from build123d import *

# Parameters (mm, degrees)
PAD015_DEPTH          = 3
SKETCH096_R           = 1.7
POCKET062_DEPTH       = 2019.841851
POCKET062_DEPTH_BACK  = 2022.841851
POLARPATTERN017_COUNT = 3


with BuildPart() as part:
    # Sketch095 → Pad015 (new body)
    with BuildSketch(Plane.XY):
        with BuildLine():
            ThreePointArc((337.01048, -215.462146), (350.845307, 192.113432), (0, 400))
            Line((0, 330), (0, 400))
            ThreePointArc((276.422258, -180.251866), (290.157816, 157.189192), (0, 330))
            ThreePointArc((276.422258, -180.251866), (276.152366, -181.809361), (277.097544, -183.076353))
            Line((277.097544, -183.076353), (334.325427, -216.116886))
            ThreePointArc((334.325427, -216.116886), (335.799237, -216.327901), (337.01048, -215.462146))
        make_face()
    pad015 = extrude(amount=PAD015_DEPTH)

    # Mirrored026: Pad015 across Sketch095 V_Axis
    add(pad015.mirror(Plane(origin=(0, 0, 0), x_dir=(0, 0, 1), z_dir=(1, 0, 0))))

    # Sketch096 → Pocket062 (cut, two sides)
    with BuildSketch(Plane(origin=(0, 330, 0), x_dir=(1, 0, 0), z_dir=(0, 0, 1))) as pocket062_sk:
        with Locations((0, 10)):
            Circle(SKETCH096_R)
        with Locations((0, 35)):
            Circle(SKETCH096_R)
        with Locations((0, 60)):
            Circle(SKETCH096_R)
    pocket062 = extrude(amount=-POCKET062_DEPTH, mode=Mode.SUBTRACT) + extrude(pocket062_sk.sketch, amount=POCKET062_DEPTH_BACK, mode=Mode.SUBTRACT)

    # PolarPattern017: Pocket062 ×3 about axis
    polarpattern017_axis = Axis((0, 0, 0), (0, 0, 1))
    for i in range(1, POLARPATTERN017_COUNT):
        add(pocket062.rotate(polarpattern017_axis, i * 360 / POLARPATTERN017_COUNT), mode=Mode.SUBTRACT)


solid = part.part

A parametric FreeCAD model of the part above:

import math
import FreeCAD as App
import Part
import Sketcher
Q = App.Units.Quantity

doc = App.newDocument("Part")
params = doc.addObject("Spreadsheet::Sheet", "Params")
for row, (alias, value) in enumerate([
    ("sketch1_radius", "400 mm"),
    ("sketch1_radius2", "330 mm"),
    ("sketch1_radius3", "2.000002 mm"),
    ("pad1_length", "3 mm"),
    ("sketch2_diameter", "3.4 mm"),
], start=1):
    params.set(f"A{row}", alias)
    params.set(f"B{row}", "=" + value)
    params.setAlias(f"B{row}", alias)

body = doc.addObject("PartDesign::Body", "Body")

sketch1 = body.newObject("Sketcher::SketchObject", "Sketch")
sketch1.AttachmentSupport = (doc.getObject("XY_Plane"), [""])
sketch1.MapMode = "FlatFace"
sketch1.addGeometry([
    Part.ArcOfCircle(Part.Circle(App.Vector(0, 0, 0), App.Vector(0, 0, 1), 400), math.radians(-33), math.radians(90)),
    Part.LineSegment(App.Vector(0, 400, 0), App.Vector(0, 330, 0)),
    Part.ArcOfCircle(Part.Circle(App.Vector(0, 0, 0), App.Vector(0, 0, 1), 330), math.radians(-33), math.radians(90)),
    Part.ArcOfCircle(Part.Circle(App.Vector(278.1, -181.3, 0), App.Vector(0, 0, 1), 2), math.radians(147), math.radians(240)),
    Part.LineSegment(App.Vector(277.1, -183.1, 0), App.Vector(334.3, -216.1, 0)),
    Part.ArcOfCircle(Part.Circle(App.Vector(335.3, -214.4, 0), App.Vector(0, 0, 1), 2), math.radians(-120), math.radians(-33)),
], False)
sketch1.addConstraint([
    Sketcher.Constraint("Coincident", 0, 2, 1, 1),
    Sketcher.Constraint("Coincident", 1, 2, 2, 2),
    Sketcher.Constraint("Tangent", 2, 1, 3, 1),
    Sketcher.Constraint("Tangent", 3, 2, 4, 1),
    Sketcher.Constraint("Tangent", 4, 2, 5, 1),
    Sketcher.Constraint("Tangent", 5, 2, 0, 1),
    Sketcher.Constraint("Vertical", 1),
    Sketcher.Constraint("Coincident", 0, 3, -1, 1),
    Sketcher.Constraint("Coincident", 2, 3, -1, 1),
    Sketcher.Constraint("Equal", 3, 5),
    Sketcher.Constraint("PointOnObject", 1, 2, -2),
    Sketcher.Constraint("Radius", 0, 400.0),
    Sketcher.Constraint("Radius", 2, 330.0),
    Sketcher.Constraint("Radius", 3, 2.000002),
    Sketcher.Constraint("Angle", 4, Q("-30 deg")),
    Sketcher.Constraint("DistanceY", 3, 3, -1, 1, 181.344302),
])
sketch1.setExpression("Constraints[11]", "Params.sketch1_radius")
sketch1.setExpression("Constraints[12]", "Params.sketch1_radius2")
sketch1.setExpression("Constraints[13]", "Params.sketch1_radius3")
pad1 = body.newObject("PartDesign::Pad", "Pad")
pad1.Profile = sketch1
pad1.setExpression("Length", "Params.pad1_length")
doc.recompute()

mirrored = body.newObject("PartDesign::Mirrored", "Mirrored")
mirrored.Originals = [pad1]
mirrored.MirrorPlane = (doc.getObject("YZ_Plane"), [""])
body.Tip = mirrored

sketch2 = body.newObject("Sketcher::SketchObject", "Sketch001")
sketch2.AttachmentSupport = (doc.getObject("XY_Plane"), [""])
sketch2.MapMode = "FlatFace"
sketch2.addGeometry([
    Part.Circle(App.Vector(0, 340, 0), App.Vector(0, 0, 1), 1.7),
    Part.Circle(App.Vector(0, 365, 0), App.Vector(0, 0, 1), 1.7),
    Part.Circle(App.Vector(0, 390, 0), App.Vector(0, 0, 1), 1.7),
], False)
sketch2.addConstraint([
    Sketcher.Constraint("Equal", 0, 1),
    Sketcher.Constraint("Equal", 1, 2),
    Sketcher.Constraint("PointOnObject", 0, 3, -2),
    Sketcher.Constraint("PointOnObject", 1, 3, -2),
    Sketcher.Constraint("PointOnObject", 2, 3, -2),
    Sketcher.Constraint("Diameter", 0, 3.4),
    Sketcher.Constraint("DistanceY", -1, 1, 0, 3, 340.0),
    Sketcher.Constraint("DistanceY", -1, 1, 1, 3, 365.0),
    Sketcher.Constraint("DistanceY", -1, 1, 2, 3, 390.0),
])
sketch2.setExpression("Constraints[5]", "Params.sketch2_diameter")
pocket1 = body.newObject("PartDesign::Pocket", "Pocket")
pocket1.Profile = sketch2
pocket1.Type = "ThroughAll"
pocket1.Midplane = True
doc.recompute()

polarpattern = body.newObject("PartDesign::PolarPattern", "PolarPattern")
polarpattern.Originals = [pocket1]
polarpattern.Axis = (doc.getObject("Z_Axis"), [""])
polarpattern.Angle = 360
polarpattern.Occurrences = 3
body.Tip = polarpattern

doc.recompute()
